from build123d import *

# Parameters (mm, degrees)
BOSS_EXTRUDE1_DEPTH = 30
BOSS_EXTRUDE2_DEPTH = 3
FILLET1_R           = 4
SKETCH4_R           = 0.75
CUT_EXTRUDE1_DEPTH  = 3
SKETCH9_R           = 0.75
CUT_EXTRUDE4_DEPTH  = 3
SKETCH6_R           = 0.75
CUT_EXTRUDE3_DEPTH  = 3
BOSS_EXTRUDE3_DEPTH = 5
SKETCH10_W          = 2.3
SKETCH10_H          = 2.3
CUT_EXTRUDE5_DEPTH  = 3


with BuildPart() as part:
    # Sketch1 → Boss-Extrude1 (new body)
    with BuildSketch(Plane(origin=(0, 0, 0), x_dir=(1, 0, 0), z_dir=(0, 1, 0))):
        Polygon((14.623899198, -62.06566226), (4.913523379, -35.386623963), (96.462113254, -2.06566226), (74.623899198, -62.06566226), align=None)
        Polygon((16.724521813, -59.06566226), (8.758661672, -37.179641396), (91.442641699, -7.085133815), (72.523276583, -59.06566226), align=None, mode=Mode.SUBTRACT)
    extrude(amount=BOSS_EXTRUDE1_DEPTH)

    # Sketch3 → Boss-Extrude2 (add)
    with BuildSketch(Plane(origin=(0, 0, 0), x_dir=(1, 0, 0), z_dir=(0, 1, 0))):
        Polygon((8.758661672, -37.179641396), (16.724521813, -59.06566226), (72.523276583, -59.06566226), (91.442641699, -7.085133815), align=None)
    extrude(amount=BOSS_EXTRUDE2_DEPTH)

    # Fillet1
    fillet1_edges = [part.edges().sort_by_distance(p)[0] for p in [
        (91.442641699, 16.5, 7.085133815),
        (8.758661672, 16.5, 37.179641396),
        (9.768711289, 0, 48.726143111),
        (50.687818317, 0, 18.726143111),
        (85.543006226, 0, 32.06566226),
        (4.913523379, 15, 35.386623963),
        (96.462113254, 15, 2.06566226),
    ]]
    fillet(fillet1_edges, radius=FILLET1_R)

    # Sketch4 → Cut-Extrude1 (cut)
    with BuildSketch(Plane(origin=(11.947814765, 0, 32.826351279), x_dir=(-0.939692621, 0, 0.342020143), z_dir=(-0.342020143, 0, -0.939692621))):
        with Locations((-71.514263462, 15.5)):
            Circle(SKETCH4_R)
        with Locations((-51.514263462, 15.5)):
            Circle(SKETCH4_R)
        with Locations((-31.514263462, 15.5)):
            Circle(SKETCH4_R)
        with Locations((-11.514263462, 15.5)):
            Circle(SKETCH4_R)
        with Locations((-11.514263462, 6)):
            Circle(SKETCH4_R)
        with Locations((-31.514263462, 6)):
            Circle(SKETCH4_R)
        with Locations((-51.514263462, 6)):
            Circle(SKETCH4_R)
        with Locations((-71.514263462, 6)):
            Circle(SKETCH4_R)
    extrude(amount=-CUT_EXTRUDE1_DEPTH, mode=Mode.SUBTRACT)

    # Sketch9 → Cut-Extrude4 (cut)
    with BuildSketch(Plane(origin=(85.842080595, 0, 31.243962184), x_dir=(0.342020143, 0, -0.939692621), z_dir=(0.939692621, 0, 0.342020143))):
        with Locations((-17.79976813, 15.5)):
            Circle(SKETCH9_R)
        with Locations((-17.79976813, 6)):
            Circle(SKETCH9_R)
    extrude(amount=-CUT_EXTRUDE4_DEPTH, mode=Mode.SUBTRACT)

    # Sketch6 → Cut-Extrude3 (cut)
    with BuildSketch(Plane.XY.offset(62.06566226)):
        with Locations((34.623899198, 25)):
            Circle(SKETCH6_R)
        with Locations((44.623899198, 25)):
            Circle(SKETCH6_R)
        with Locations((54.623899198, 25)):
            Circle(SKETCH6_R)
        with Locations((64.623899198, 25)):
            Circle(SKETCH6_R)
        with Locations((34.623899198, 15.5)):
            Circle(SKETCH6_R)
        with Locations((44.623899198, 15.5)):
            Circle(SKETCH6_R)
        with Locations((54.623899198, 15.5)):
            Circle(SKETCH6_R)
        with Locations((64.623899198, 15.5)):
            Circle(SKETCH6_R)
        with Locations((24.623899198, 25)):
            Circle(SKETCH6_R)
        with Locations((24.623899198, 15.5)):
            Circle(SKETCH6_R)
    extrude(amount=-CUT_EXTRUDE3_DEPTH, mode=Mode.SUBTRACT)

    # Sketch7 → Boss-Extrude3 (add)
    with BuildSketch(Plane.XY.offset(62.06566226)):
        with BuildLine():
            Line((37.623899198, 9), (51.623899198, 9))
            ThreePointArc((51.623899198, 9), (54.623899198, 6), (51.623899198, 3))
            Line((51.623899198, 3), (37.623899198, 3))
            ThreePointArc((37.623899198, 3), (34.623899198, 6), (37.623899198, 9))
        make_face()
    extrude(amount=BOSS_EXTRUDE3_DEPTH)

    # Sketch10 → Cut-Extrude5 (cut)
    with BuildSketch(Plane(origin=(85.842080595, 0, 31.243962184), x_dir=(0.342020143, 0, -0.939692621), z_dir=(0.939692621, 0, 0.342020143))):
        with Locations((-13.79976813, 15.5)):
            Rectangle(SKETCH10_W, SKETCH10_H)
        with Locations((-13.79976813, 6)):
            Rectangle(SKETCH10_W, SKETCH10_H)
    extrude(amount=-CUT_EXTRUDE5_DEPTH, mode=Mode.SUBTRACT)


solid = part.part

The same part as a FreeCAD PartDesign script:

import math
import FreeCAD as App
import Part
import Sketcher
Q = App.Units.Quantity


def edges_at(feature, points):
    """Names of the edges that pass closest to the given points."""
    edges = feature.Shape.Edges
    near = lambda p: min(range(len(edges)), key=lambda i: edges[i].distToShape(Part.Vertex(*p))[0])
    return sorted({f"Edge{near(p) + 1}" for p in points})


def add_polygon(sketch, points):
    """Adds a closed chain of lines whose ends are joined by coincident constraints."""
    first, n = sketch.GeometryCount, len(points)
    for a, b in zip(points, points[1:] + points[:1]):
        sketch.addGeometry(Part.LineSegment(App.Vector(*a, 0), App.Vector(*b, 0)), False)
    for i in range(n):
        sketch.addConstraint(Sketcher.Constraint("Coincident", first + i, 2, first + (i + 1) % n, 1))

doc = App.newDocument("Part")
params = doc.addObject("Spreadsheet::Sheet", "Params")
for row, (alias, value) in enumerate([
    ("sketch1_width", "60 mm"),
    ("pad1_length", "30 mm"),
    ("pad2_length", "3 mm"),
    ("fillet_radius", "4 mm"),
    ("sketch3_diameter", "1.5 mm"),
    ("pocket1_length", "3 mm"),
    ("sketch4_diameter", "1.5 mm"),
    ("pocket2_length", "3 mm"),
    ("sketch5_diameter", "1.5 mm"),
    ("pocket3_length", "3 mm"),
    ("sketch6_radius", "3 mm"),
    ("sketch6_width", "14 mm"),
    ("pad3_length", "5 mm"),
    ("sketch7_width", "2.3 mm"),
    ("pocket4_length", "3 mm"),
], start=1):
    params.set(f"A{row}", alias)
    params.set(f"B{row}", "=" + value)
    params.setAlias(f"B{row}", alias)

body = doc.addObject("PartDesign::Body", "Body")

# Sketch on XZ plane
sketch1 = doc.addObject("Sketcher::SketchObject", "Sketch")
body.addObject(sketch1)
sketch1.AttachmentSupport = (doc.XZ_Plane, [""])
sketch1.MapMode = "FlatFace"
add_polygon(sketch1, [(5, 35), (15, 62), (75, 62), (96, 2)])  # lines 0-3
add_polygon(sketch1, [(17, 59), (9, 37), (91, 7), (73, 59)])  # lines 4-7
sketch1.addConstraint([
    Sketcher.Constraint("Horizontal", 1),
    Sketcher.Constraint("Horizontal", 7),
    Sketcher.Constraint("Perpendicular", 0, 3),
    Sketcher.Constraint("Perpendicular", 3, 4),
    Sketcher.Constraint("Perpendicular", 4, 5),
    Sketcher.Constraint("Parallel", 2, 6),
    Sketcher.Constraint("DistanceX", 1, 1, 1, 2, 60.0),
    Sketcher.Constraint("Angle", 0, Q("70 deg")),
    Sketcher.Constraint("Angle", 2, Q("-70 deg")),
    Sketcher.Constraint("DistanceY", 2, 2, 1, 2, 60.0),
    Sketcher.Constraint("DistanceY", 6, 2, 1, 2, 3.0),
    Sketcher.Constraint("DistanceX", 3, 2, 7, 2, 11.810998),
    Sketcher.Constraint("DistanceX", -1, 1, 0, 2, 14.623899),
    Sketcher.Constraint("DistanceX", 7, 2, 7, 1, 55.798755),
    Sketcher.Constraint("DistanceX", -1, 1, 4, 2, 8.758662),
    Sketcher.Constraint("DistanceY", -1, 1, 4, 2, 37.179641),
])
sketch1.setExpression("Constraints[14]", "Params.sketch1_width")
pad1 = doc.addObject("PartDesign::Pad", "Pad")
body.addObject(pad1)
pad1.Profile = sketch1
pad1.setExpression("Length", "Params.pad1_length")
pad1.Reversed = True

# Sketch on XZ plane
sketch2 = doc.addObject("Sketcher::SketchObject", "Sketch001")
body.addObject(sketch2)
sketch2.AttachmentSupport = (doc.XZ_Plane, [""])
sketch2.MapMode = "FlatFace"
add_polygon(sketch2, [(9, 37), (17, 59), (73, 59), (91, 7)])  # lines 0-3
sketch2.addConstraint([
    Sketcher.Constraint("Horizontal", 1),
    Sketcher.Constraint("Perpendicular", 0, 3),
    Sketcher.Constraint("Angle", 0, Q("70 deg")),
    Sketcher.Constraint("Angle", 2, Q("-70 deg")),
    Sketcher.Constraint("DistanceX", 1, 1, 1, 2, 55.798755),
    Sketcher.Constraint("DistanceX", -1, 1, 0, 2, 16.724522),
    Sketcher.Constraint("DistanceX", -1, 1, 2, 2, 91.442642),
    Sketcher.Constraint("DistanceY", -1, 1, 3, 2, 37.179641),
])
pad2 = doc.addObject("PartDesign::Pad", "Pad001")
body.addObject(pad2)
pad2.Profile = sketch2
pad2.setExpression("Length", "Params.pad2_length")
pad2.Reversed = True
doc.recompute()

fillet = doc.addObject("PartDesign::Fillet", "Fillet")
body.addObject(fillet)
fillet.Base = (pad2, edges_at(pad2, [
    (91.443, 16.5, 7.085),
    (8.759, 16.5, 37.18),
    (9.769, 0, 48.726),
    (50.688, 0, 18.726),
    (85.543, 0, 32.066),
    (4.914, 15, 35.387),
    (96.462, 15, 2.066),
]))
fillet.setExpression("Radius", "Params.fillet_radius")

# Sketch on an angled plane
sketch3 = doc.addObject("Sketcher::SketchObject", "Sketch002")
body.addObject(sketch3)
sketch3.Placement = App.Placement(App.Vector(11.947815, 0, 32.826351), App.Rotation(App.Vector(-0.939692621, 0, 0.342020143), App.Vector(0, 1, 0), App.Vector(-0.342020143, 0, -0.939692621), "ZXY"))
sketch3.addGeometry([
    Part.Circle(App.Vector(-71.5, 15.5, 0), App.Vector(0, 0, 1), 0.8),  # 0
    Part.Circle(App.Vector(-51.5, 15.5, 0), App.Vector(0, 0, 1), 0.8),  # 1
    Part.Circle(App.Vector(-31.5, 15.5, 0), App.Vector(0, 0, 1), 0.8),  # 2
    Part.Circle(App.Vector(-11.5, 15.5, 0), App.Vector(0, 0, 1), 0.8),  # 3
    Part.Circle(App.Vector(-11.5, 6, 0), App.Vector(0, 0, 1), 0.8),  # 4
    Part.Circle(App.Vector(-31.5, 6, 0), App.Vector(0, 0, 1), 0.8),  # 5
    Part.Circle(App.Vector(-51.5, 6, 0), App.Vector(0, 0, 1), 0.8),  # 6
    Part.Circle(App.Vector(-71.5, 6, 0), App.Vector(0, 0, 1), 0.8),  # 7
], False)
sketch3.addConstraint([
    Sketcher.Constraint("Equal", 0, 1),
    Sketcher.Constraint("Equal", 1, 2),
    Sketcher.Constraint("Equal", 2, 3),
    Sketcher.Constraint("Equal", 3, 4),
    Sketcher.Constraint("Equal", 4, 5),
    Sketcher.Constraint("Equal", 5, 6),
    Sketcher.Constraint("Equal", 6, 7),
    Sketcher.Constraint("Horizontal", 0, 3, 1, 3),
    Sketcher.Constraint("Horizontal", 1, 3, 2, 3),
    Sketcher.Constraint("Horizontal", 2, 3, 3, 3),
    Sketcher.Constraint("Horizontal", 4, 3, 5, 3),
    Sketcher.Constraint("Horizontal", 5, 3, 6, 3),
    Sketcher.Constraint("Horizontal", 6, 3, 7, 3),
    Sketcher.Constraint("Vertical", 3, 3, 4, 3),
    Sketcher.Constraint("Vertical", 2, 3, 5, 3),
    Sketcher.Constraint("Vertical", 1, 3, 6, 3),
    Sketcher.Constraint("Vertical", 0, 3, 7, 3),
    Sketcher.Constraint("Diameter", 0, 1.5),
    Sketcher.Constraint("DistanceY", -1, 1, 4, 3, 6.0),
    Sketcher.Constraint("DistanceX", 0, 3, 1, 3, 20.0),
    Sketcher.Constraint("DistanceX", 1, 3, 2, 3, 20.0),
    Sketcher.Constraint("DistanceX", 2, 3, 3, 3, 20.0),
    Sketcher.Constraint("DistanceY", -1, 1, 0, 3, 15.5),
    Sketcher.Constraint("DistanceX", 0, 3, -1, 1, 71.514263),
])
sketch3.setExpression("Constraints[17]", "Params.sketch3_diameter")
pocket1 = doc.addObject("PartDesign::Pocket", "Pocket")
body.addObject(pocket1)
pocket1.Profile = sketch3
pocket1.setExpression("Length", "Params.pocket1_length")

# Sketch on an angled plane
sketch4 = doc.addObject("Sketcher::SketchObject", "Sketch003")
body.addObject(sketch4)
sketch4.Placement = App.Placement(App.Vector(85.842081, 0, 31.243962), App.Rotation(App.Vector(0.342020143, 0, -0.939692621), App.Vector(0, 1, 0), App.Vector(0.939692621, 0, 0.342020143), "ZXY"))
sketch4.addGeometry([
    Part.Circle(App.Vector(-17.8, 15.5, 0), App.Vector(0, 0, 1), 0.8),
    Part.Circle(App.Vector(-17.8, 6, 0), App.Vector(0, 0, 1), 0.8),
], False)
sketch4.addConstraint([
    Sketcher.Constraint("Equal", 0, 1),
    Sketcher.Constraint("Vertical", 0, 3, 1, 3),
    Sketcher.Constraint("Diameter", 0, 1.5),
    Sketcher.Constraint("DistanceY", -1, 1, 1, 3, 6.0),
    Sketcher.Constraint("DistanceY", -1, 1, 0, 3, 15.5),
    Sketcher.Constraint("DistanceX", 0, 3, -1, 1, 17.799768),
])
sketch4.setExpression("Constraints[2]", "Params.sketch4_diameter")
pocket2 = doc.addObject("PartDesign::Pocket", "Pocket001")
body.addObject(pocket2)
pocket2.Profile = sketch4
pocket2.setExpression("Length", "Params.pocket2_length")

# Sketch on XY plane
sketch5 = doc.addObject("Sketcher::SketchObject", "Sketch004")
body.addObject(sketch5)
sketch5.AttachmentSupport = (doc.XY_Plane, [""])
sketch5.MapMode = "FlatFace"
sketch5.AttachmentOffset = App.Placement(App.Vector(0, 0, 62.065662), App.Rotation())
sketch5.addGeometry([
    Part.Circle(App.Vector(34.6, 25, 0), App.Vector(0, 0, 1), 0.8),  # 0
    Part.Circle(App.Vector(44.6, 25, 0), App.Vector(0, 0, 1), 0.8),  # 1
    Part.Circle(App.Vector(54.6, 25, 0), App.Vector(0, 0, 1), 0.8),  # 2
    Part.Circle(App.Vector(64.6, 25, 0), App.Vector(0, 0, 1), 0.8),  # 3
    Part.Circle(App.Vector(34.6, 15.5, 0), App.Vector(0, 0, 1), 0.8),  # 4
    Part.Circle(App.Vector(44.6, 15.5, 0), App.Vector(0, 0, 1), 0.8),  # 5
    Part.Circle(App.Vector(54.6, 15.5, 0), App.Vector(0, 0, 1), 0.8),  # 6
    Part.Circle(App.Vector(64.6, 15.5, 0), App.Vector(0, 0, 1), 0.8),  # 7
    Part.Circle(App.Vector(24.6, 25, 0), App.Vector(0, 0, 1), 0.8),  # 8
    Part.Circle(App.Vector(24.6, 15.5, 0), App.Vector(0, 0, 1), 0.8),  # 9
], False)
sketch5.addConstraint([
    Sketcher.Constraint("Equal", 0, 1),
    Sketcher.Constraint("Equal", 1, 2),
    Sketcher.Constraint("Equal", 2, 3),
    Sketcher.Constraint("Equal", 3, 4),
    Sketcher.Constraint("Equal", 4, 5),
    Sketcher.Constraint("Equal", 5, 6),
    Sketcher.Constraint("Equal", 6, 7),
    Sketcher.Constraint("Equal", 7, 8),
    Sketcher.Constraint("Equal", 8, 9),
    Sketcher.Constraint("Horizontal", 0, 3, 1, 3),
    Sketcher.Constraint("Horizontal", 1, 3, 2, 3),
    Sketcher.Constraint("Horizontal", 2, 3, 3, 3),
    Sketcher.Constraint("Horizontal", 4, 3, 5, 3),
    Sketcher.Constraint("Horizontal", 5, 3, 6, 3),
    Sketcher.Constraint("Horizontal", 6, 3, 7, 3),
    Sketcher.Constraint("Horizontal", 3, 3, 8, 3),
    Sketcher.Constraint("Horizontal", 7, 3, 9, 3),
    Sketcher.Constraint("Vertical", 0, 3, 4, 3),
    Sketcher.Constraint("Vertical", 1, 3, 5, 3),
    Sketcher.Constraint("Vertical", 2, 3, 6, 3),
    Sketcher.Constraint("Vertical", 3, 3, 7, 3),
    Sketcher.Constraint("Vertical", 8, 3, 9, 3),
    Sketcher.Constraint("Diameter", 0, 1.5),
    Sketcher.Constraint("DistanceY", -1, 1, 0, 3, 25.0),
    Sketcher.Constraint("DistanceX", 0, 3, 1, 3, 10.0),
    Sketcher.Constraint("DistanceX", 1, 3, 2, 3, 10.0),
    Sketcher.Constraint("DistanceX", 2, 3, 3, 3, 10.0),
    Sketcher.Constraint("DistanceX", 8, 3, 0, 3, 10.0),
    Sketcher.Constraint("DistanceY", -1, 1, 4, 3, 15.5),
    Sketcher.Constraint("DistanceX", -1, 1, 0, 3, 34.623899),
])
sketch5.setExpression("Constraints[22]", "Params.sketch5_diameter")
pocket3 = doc.addObject("PartDesign::Pocket", "Pocket002")
body.addObject(pocket3)
pocket3.Profile = sketch5
pocket3.setExpression("Length", "Params.pocket3_length")

# Sketch on XY plane
sketch6 = doc.addObject("Sketcher::SketchObject", "Sketch005")
body.addObject(sketch6)
sketch6.AttachmentSupport = (doc.XY_Plane, [""])
sketch6.MapMode = "FlatFace"
sketch6.AttachmentOffset = App.Placement(App.Vector(0, 0, 62.065662), App.Rotation())
sketch6.addGeometry([
    Part.LineSegment(App.Vector(51.6, 9, 0), App.Vector(37.6, 9, 0)),
    Part.ArcOfCircle(Part.Circle(App.Vector(37.6, 6, 0), App.Vector(0, 0, 1), 3), math.radians(90), math.radians(270)),
    Part.LineSegment(App.Vector(37.6, 3, 0), App.Vector(51.6, 3, 0)),
    Part.ArcOfCircle(Part.Circle(App.Vector(51.6, 6, 0), App.Vector(0, 0, 1), 3), math.radians(-90), math.radians(90)),
], False)
sketch6.addConstraint([
    Sketcher.Constraint("Tangent", 0, 2, 1, 1),
    Sketcher.Constraint("Tangent", 1, 2, 2, 1),
    Sketcher.Constraint("Tangent", 2, 2, 3, 1),
    Sketcher.Constraint("Tangent", 3, 2, 0, 1),
    Sketcher.Constraint("Horizontal", 0),
    Sketcher.Constraint("Horizontal", 2),
    Sketcher.Constraint("Radius", 1, 3.0),
    Sketcher.Constraint("DistanceX", 0, 2, 0, 1, 14.0),
    Sketcher.Constraint("DistanceY", -1, 1, 1, 3, 6.0),
    Sketcher.Constraint("DistanceX", -1, 1, 1, 3, 37.623899),
])
sketch6.setExpression("Constraints[6]", "Params.sketch6_radius")
sketch6.setExpression("Constraints[7]", "Params.sketch6_width")
pad3 = doc.addObject("PartDesign::Pad", "Pad002")
body.addObject(pad3)
pad3.Profile = sketch6
pad3.setExpression("Length", "Params.pad3_length")

# Sketch on an angled plane
sketch7 = doc.addObject("Sketcher::SketchObject", "Sketch006")
body.addObject(sketch7)
sketch7.Placement = App.Placement(App.Vector(85.842081, 0, 31.243962), App.Rotation(App.Vector(0.342020143, 0, -0.939692621), App.Vector(0, 1, 0), App.Vector(0.939692621, 0, 0.342020143), "ZXY"))
add_polygon(sketch7, [(-14.9, 16.7), (-14.9, 14.4), (-12.6, 14.4), (-12.6, 16.7)])  # lines 0-3
add_polygon(sketch7, [(-14.9, 7.2), (-14.9, 4.9), (-12.6, 4.9), (-12.6, 7.2)])  # lines 4-7
sketch7.addConstraint([
    Sketcher.Constraint("Vertical", 0),
    Sketcher.Constraint("Horizontal", 1),
    Sketcher.Constraint("Vertical", 2),
    Sketcher.Constraint("Horizontal", 3),
    Sketcher.Constraint("Vertical", 4),
    Sketcher.Constraint("Horizontal", 5),
    Sketcher.Constraint("Vertical", 6),
    Sketcher.Constraint("Horizontal", 7),
    Sketcher.Constraint("Vertical", 3, 2, 4, 2),
    Sketcher.Constraint("Vertical", 2, 2, 5, 2),
    Sketcher.Constraint("Equal", 7, 0),
    Sketcher.Constraint("Equal", 2, 4),
    Sketcher.Constraint("DistanceX", 1, 1, 1, 2, 2.3),
    Sketcher.Constraint("DistanceY", 4, 2, 0, 2, 9.5),
    Sketcher.Constraint("DistanceY", -1, 1, 0, 2, 14.35),
    Sketcher.Constraint("DistanceX", 0, 2, -1, 1, 14.949768),
])
sketch7.setExpression("Constraints[20]", "Params.sketch7_width")
pocket4 = doc.addObject("PartDesign::Pocket", "Pocket003")
body.addObject(pocket4)
pocket4.Profile = sketch7
pocket4.setExpression("Length", "Params.pocket4_length")

doc.recompute()
